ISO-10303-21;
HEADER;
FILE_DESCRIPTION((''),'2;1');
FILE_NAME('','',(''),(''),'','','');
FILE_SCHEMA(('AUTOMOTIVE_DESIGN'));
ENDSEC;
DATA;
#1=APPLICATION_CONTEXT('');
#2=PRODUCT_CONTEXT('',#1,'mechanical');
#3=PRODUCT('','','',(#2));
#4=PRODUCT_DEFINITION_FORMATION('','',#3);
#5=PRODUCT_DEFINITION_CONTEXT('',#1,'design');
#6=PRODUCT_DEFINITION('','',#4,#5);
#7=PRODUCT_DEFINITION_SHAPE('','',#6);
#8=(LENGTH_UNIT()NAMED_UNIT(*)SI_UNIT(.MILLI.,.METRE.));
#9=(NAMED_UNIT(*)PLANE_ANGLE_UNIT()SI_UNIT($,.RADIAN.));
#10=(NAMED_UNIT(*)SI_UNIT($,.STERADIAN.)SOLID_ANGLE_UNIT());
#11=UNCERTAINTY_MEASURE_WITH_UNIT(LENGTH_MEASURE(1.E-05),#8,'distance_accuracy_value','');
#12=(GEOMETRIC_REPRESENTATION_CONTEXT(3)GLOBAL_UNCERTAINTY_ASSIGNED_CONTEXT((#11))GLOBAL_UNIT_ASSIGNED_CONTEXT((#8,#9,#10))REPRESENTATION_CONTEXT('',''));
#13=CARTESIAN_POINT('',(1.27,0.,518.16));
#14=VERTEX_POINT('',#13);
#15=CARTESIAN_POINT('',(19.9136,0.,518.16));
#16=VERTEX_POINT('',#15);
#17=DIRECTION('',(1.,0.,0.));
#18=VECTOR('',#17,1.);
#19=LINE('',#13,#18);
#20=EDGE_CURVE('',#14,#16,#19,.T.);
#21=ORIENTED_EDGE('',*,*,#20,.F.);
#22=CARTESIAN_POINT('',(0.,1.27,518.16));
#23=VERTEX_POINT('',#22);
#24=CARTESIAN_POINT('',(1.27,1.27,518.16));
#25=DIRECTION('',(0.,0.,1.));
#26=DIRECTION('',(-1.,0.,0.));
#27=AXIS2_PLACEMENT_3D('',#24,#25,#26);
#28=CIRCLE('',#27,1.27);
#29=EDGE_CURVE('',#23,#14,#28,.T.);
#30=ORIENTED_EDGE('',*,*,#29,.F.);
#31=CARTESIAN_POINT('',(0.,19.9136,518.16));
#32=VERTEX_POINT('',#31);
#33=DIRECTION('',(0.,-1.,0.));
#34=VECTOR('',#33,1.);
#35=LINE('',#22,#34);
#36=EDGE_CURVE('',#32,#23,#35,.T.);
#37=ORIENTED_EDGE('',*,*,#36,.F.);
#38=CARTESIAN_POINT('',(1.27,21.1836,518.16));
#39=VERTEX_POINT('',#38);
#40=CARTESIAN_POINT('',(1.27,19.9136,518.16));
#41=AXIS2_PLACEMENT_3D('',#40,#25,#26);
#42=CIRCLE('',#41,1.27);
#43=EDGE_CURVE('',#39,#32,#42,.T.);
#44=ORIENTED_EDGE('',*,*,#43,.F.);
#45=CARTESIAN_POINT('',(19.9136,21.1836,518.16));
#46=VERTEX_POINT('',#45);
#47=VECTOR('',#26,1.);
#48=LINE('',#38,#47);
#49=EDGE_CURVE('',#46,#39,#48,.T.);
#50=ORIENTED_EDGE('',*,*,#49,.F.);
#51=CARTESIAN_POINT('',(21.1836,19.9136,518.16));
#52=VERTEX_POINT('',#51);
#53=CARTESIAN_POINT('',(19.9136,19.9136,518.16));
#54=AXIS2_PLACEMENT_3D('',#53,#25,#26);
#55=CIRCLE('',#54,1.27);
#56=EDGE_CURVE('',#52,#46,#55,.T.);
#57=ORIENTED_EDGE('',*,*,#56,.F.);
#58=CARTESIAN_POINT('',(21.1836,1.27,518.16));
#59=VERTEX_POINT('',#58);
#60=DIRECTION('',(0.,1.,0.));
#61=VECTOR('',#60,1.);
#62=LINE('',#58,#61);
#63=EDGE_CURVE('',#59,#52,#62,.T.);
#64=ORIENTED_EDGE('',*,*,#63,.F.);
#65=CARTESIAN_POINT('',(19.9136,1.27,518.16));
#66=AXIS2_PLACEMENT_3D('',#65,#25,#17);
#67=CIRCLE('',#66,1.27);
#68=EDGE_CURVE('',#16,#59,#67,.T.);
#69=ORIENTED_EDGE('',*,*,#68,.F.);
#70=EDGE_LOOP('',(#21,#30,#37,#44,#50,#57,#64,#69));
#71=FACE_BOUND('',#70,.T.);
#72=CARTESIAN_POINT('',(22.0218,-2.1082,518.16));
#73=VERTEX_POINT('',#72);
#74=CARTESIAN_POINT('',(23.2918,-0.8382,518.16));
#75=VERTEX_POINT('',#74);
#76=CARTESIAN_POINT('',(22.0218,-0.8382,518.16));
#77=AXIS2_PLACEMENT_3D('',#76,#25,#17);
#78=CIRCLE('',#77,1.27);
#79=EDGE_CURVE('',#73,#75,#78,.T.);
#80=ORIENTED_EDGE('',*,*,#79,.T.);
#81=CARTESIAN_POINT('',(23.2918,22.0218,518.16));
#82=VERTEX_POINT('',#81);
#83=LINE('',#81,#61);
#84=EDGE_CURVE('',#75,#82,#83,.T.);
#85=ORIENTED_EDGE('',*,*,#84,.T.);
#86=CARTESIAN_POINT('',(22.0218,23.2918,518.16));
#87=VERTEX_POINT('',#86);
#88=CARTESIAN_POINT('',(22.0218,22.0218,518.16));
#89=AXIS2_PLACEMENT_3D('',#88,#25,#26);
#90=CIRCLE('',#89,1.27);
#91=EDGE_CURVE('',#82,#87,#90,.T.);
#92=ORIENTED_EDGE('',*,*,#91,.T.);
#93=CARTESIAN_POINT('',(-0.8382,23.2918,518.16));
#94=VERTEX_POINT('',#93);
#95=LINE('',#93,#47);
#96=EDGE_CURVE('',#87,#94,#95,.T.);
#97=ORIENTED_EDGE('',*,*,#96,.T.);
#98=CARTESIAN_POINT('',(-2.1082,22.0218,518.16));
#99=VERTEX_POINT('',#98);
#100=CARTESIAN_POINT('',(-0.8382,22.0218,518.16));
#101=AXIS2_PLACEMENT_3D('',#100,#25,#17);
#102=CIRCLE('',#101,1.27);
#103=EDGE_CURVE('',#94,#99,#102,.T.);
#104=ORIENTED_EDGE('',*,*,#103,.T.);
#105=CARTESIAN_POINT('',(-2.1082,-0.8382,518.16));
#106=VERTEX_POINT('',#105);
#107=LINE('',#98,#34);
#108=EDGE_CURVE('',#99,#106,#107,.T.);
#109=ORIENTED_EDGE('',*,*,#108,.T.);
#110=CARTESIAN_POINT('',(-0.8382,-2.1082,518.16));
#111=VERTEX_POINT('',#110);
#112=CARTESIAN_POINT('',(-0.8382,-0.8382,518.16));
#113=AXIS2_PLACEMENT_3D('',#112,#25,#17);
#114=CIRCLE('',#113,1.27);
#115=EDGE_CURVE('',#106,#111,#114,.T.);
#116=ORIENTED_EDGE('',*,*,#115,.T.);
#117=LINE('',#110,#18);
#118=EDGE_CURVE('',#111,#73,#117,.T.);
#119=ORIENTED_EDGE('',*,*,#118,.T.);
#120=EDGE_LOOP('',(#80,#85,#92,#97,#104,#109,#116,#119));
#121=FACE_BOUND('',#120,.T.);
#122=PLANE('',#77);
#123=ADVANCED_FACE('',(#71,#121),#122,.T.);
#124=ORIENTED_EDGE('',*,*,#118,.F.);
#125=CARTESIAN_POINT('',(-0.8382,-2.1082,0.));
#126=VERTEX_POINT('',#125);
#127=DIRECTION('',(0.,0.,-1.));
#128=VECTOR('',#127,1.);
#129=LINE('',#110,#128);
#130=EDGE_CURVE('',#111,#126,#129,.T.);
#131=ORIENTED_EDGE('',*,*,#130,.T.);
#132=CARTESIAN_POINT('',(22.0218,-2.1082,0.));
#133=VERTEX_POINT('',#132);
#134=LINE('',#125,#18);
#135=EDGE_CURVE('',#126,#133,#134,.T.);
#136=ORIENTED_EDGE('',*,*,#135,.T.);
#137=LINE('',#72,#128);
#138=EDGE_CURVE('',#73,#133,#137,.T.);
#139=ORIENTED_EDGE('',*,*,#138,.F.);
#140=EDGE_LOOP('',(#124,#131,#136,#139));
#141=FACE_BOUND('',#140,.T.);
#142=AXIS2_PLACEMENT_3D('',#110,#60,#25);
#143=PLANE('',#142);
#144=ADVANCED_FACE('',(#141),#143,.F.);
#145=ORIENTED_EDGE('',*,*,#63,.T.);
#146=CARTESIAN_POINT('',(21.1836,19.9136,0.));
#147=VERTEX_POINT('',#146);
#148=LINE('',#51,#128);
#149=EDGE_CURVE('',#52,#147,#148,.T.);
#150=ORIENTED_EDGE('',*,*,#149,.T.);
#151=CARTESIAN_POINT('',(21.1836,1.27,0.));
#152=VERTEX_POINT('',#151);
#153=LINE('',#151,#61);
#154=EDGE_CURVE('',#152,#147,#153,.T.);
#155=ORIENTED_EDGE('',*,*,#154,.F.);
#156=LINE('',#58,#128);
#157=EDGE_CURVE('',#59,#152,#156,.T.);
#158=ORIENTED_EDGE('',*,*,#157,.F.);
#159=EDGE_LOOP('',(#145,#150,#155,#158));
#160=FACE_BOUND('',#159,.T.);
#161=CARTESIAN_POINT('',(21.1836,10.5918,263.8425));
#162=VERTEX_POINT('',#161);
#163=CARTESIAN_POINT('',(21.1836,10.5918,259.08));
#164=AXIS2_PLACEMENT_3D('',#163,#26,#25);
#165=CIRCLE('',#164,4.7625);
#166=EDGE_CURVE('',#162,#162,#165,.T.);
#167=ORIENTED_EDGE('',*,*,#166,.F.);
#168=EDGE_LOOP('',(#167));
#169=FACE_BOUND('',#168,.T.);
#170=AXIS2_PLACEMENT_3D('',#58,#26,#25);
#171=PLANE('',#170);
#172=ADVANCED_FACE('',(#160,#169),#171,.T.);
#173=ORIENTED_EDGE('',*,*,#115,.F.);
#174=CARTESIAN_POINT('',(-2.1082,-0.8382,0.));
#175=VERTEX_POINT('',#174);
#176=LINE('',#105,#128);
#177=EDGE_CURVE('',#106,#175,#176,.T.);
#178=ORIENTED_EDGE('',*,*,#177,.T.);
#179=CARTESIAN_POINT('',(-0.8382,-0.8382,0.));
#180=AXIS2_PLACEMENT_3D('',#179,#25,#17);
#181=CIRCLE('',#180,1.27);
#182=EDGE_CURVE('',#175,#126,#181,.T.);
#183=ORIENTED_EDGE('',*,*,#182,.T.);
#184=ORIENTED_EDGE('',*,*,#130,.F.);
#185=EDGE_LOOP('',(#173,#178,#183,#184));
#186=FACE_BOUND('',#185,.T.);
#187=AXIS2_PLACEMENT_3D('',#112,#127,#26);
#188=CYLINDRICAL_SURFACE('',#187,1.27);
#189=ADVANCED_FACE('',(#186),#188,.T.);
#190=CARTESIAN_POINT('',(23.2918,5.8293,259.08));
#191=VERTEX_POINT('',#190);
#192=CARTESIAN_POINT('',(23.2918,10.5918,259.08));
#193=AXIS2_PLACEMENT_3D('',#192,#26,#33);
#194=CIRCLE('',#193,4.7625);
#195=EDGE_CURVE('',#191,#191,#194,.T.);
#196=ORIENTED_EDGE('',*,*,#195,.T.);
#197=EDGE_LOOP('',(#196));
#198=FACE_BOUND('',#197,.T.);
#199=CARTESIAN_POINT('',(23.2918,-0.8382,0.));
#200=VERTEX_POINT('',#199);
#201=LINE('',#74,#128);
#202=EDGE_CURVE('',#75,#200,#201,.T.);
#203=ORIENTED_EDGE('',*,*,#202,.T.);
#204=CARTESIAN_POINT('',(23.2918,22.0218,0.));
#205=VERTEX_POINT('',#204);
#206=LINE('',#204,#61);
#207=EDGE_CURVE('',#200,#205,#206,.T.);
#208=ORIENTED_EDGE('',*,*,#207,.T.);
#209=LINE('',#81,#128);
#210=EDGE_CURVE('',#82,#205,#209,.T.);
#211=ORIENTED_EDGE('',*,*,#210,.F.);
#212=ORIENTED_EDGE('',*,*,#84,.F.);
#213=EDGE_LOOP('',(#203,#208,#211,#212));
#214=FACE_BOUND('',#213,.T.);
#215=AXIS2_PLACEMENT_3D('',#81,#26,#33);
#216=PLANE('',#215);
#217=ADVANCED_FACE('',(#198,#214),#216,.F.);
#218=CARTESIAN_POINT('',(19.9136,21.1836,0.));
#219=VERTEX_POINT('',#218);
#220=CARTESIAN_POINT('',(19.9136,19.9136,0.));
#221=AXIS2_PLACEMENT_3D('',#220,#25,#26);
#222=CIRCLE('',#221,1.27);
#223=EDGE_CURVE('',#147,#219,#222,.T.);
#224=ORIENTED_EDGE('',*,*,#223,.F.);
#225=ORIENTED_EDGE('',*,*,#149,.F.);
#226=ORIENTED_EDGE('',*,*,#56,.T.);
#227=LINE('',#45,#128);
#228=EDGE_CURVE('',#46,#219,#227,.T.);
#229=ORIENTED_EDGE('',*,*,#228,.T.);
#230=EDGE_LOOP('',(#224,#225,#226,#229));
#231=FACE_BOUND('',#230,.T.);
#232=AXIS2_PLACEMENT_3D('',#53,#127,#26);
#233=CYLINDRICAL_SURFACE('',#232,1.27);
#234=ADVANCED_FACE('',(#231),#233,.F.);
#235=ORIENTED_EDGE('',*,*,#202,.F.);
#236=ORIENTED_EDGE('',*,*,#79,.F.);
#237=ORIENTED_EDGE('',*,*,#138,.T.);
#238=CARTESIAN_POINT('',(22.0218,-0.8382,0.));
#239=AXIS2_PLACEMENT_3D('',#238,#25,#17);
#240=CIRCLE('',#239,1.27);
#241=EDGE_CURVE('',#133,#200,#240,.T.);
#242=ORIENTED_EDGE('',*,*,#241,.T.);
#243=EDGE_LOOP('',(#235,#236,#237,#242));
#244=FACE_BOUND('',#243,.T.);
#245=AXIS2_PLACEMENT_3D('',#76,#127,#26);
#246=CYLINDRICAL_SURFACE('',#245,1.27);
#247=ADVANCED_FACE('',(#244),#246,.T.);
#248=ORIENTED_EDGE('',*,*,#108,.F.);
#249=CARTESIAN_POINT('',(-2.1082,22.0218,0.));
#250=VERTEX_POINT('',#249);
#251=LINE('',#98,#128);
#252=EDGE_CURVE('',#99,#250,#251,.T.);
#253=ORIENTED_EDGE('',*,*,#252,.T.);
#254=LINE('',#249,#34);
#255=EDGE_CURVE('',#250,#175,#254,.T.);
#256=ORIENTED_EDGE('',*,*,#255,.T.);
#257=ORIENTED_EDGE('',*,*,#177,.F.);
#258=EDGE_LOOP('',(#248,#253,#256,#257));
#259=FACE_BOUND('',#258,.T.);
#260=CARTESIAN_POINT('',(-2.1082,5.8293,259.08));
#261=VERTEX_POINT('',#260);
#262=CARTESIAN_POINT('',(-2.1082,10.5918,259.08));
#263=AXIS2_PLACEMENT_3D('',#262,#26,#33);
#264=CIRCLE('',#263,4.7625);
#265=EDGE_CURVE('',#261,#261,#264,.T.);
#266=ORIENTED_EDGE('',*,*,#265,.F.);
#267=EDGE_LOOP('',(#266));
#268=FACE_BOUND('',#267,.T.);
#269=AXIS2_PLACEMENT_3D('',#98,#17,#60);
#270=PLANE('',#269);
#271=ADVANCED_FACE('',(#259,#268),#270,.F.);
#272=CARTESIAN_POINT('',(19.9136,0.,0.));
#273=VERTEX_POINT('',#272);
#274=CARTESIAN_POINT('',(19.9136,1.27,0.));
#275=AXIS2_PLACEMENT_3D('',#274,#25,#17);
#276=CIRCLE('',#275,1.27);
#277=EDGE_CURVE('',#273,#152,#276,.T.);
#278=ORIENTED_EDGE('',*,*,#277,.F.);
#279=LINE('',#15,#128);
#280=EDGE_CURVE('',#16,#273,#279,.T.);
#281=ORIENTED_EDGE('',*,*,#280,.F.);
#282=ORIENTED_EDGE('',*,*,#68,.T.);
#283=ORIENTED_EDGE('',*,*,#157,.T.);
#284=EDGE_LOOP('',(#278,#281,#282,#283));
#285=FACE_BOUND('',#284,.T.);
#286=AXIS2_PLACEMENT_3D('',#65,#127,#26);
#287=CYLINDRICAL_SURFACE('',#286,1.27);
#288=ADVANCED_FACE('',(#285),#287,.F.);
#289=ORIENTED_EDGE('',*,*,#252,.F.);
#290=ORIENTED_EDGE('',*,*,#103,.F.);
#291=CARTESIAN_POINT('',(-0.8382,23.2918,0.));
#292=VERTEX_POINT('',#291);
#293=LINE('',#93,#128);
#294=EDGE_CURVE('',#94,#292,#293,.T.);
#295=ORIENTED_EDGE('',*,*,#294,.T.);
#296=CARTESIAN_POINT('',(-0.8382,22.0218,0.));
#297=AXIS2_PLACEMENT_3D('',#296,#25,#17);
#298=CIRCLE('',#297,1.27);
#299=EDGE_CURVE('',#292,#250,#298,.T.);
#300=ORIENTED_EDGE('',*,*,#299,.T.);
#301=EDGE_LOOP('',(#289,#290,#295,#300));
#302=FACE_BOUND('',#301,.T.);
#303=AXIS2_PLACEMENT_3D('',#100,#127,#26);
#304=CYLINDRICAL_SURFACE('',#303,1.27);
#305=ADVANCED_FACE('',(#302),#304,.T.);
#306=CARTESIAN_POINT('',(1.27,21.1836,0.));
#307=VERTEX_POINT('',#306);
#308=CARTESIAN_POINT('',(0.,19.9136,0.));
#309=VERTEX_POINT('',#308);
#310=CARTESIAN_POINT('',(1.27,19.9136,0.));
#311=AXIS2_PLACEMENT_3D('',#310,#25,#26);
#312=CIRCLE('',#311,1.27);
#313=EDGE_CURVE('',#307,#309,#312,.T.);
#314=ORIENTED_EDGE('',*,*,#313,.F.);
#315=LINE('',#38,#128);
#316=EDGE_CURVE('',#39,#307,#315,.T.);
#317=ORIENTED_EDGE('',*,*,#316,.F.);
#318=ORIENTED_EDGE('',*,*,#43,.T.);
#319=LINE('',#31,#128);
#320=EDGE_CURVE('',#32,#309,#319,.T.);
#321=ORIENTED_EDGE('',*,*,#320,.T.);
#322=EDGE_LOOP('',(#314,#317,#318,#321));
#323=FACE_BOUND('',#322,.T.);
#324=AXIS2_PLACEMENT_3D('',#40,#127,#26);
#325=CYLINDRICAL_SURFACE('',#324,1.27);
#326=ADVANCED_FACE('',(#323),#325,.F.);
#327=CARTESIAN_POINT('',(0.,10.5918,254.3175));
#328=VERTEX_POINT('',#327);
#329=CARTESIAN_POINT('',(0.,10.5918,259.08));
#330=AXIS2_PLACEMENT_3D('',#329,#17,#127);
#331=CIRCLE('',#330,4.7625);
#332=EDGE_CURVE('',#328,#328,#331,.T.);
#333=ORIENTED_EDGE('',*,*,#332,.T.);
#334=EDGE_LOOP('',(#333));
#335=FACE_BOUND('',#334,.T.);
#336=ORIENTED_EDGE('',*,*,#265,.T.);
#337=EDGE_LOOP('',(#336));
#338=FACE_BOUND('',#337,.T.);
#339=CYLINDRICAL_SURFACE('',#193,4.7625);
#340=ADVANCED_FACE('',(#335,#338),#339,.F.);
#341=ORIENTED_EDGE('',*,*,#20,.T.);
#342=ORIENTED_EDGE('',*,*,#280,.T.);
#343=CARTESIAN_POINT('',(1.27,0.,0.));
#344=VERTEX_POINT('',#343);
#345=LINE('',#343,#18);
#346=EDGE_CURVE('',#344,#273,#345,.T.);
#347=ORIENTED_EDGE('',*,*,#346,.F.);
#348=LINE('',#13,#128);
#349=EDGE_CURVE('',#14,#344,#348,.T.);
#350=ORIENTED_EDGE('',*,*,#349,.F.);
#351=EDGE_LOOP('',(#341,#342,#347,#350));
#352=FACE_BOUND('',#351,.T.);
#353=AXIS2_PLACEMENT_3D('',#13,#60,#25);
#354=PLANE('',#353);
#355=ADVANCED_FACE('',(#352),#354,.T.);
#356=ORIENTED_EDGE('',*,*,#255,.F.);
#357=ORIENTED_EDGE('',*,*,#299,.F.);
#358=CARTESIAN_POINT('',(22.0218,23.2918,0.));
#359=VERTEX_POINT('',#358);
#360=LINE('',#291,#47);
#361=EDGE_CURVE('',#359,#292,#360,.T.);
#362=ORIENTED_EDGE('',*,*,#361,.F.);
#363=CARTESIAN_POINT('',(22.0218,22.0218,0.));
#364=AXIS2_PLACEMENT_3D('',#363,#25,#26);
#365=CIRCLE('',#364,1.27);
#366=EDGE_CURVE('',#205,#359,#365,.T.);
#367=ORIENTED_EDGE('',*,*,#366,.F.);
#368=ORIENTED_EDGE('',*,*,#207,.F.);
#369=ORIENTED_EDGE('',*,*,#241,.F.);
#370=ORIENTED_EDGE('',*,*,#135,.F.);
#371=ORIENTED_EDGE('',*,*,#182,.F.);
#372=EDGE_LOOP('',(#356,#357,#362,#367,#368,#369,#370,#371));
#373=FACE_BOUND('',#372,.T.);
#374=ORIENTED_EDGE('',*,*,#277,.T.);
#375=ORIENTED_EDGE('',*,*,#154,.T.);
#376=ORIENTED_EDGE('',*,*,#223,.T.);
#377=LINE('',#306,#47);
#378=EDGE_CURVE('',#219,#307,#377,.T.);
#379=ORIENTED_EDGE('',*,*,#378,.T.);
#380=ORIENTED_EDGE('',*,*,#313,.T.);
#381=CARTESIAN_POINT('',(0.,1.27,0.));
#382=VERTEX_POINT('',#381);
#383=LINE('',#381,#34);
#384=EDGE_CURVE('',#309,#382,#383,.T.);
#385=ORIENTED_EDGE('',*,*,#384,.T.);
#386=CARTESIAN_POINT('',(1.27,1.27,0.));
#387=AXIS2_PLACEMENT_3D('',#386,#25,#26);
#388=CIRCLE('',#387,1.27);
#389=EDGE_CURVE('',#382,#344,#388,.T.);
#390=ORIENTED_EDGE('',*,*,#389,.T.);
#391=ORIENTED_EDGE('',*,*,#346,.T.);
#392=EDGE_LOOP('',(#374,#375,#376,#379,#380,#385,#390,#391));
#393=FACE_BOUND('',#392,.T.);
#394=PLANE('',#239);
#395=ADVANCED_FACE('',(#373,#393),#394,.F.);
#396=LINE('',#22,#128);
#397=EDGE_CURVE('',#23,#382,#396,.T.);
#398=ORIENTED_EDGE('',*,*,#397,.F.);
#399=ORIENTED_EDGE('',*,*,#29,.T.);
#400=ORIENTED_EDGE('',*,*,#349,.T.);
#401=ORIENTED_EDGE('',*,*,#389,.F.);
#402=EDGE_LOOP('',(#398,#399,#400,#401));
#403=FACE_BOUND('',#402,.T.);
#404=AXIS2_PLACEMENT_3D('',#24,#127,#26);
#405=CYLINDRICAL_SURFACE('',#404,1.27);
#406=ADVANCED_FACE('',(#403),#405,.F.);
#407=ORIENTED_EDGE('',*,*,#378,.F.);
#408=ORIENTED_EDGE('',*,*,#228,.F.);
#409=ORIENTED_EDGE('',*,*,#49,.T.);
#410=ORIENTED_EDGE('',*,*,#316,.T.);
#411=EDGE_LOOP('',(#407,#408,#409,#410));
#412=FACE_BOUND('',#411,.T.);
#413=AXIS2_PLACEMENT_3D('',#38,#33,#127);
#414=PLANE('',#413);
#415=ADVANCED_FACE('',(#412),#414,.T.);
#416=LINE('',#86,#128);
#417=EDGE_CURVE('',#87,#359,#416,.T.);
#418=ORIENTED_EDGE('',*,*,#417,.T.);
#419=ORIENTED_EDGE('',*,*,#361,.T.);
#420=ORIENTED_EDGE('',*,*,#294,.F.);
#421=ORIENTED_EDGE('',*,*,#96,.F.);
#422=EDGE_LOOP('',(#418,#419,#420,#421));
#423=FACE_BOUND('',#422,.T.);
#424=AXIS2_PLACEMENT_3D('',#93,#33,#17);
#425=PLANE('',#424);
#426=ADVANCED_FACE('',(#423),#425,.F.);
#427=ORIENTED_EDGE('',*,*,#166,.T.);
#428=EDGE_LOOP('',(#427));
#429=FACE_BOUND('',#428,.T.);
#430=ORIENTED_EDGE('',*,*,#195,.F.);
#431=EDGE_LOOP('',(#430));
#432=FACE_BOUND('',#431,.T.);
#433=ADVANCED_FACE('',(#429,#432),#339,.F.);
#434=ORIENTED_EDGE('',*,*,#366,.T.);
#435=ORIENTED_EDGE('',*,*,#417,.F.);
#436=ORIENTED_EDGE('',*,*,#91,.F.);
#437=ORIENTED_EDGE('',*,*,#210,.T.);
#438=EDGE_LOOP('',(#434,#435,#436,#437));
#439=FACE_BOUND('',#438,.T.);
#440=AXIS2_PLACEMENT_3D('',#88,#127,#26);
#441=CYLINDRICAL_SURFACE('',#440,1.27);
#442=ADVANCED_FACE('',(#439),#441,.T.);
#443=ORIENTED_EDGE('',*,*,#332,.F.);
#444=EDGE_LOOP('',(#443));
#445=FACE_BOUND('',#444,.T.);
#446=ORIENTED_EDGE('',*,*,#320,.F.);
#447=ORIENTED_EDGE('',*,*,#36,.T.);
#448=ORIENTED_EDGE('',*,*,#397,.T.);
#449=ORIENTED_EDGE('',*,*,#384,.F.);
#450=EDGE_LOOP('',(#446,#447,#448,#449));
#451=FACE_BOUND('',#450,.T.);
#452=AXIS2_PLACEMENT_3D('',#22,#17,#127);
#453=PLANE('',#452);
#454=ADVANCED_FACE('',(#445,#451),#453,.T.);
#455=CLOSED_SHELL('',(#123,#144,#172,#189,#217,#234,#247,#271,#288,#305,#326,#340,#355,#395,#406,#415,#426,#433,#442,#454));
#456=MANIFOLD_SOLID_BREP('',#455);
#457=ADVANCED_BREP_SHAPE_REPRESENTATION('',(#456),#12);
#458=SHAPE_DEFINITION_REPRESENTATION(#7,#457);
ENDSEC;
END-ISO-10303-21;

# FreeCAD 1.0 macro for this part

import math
import FreeCAD as App
import Part
import Sketcher

V = App.Vector
Q = App.Units.Quantity

doc = App.newDocument("Part")
body = doc.addObject("PartDesign::Body", "Body")

sketch1 = body.newObject("Sketcher::SketchObject", "Sketch")
sketch1.AttachmentSupport = (doc.getObject("XY_Plane"), [""])
sketch1.MapMode = "FlatFace"
sketch1.addGeometry([
    Part.LineSegment(V(22.0218, 23.2918, 0), V(-0.8382, 23.2918, 0)),
    Part.ArcOfCircle(Part.Circle(V(-0.8382, 22.0218, 0), V(0, 0, 1), 1.27), math.radians(90), math.radians(180)),
    Part.LineSegment(V(-2.1082, 22.0218, 0), V(-2.1082, -0.8382, 0)),
    Part.ArcOfCircle(Part.Circle(V(-0.8382, -0.8382, 0), V(0, 0, 1), 1.27), math.radians(180), math.radians(270)),
    Part.LineSegment(V(-0.8382, -2.1082, 0), V(22.0218, -2.1082, 0)),
    Part.ArcOfCircle(Part.Circle(V(22.0218, -0.8382, 0), V(0, 0, 1), 1.27), math.radians(-90), math.radians(0)),
    Part.LineSegment(V(23.2918, -0.8382, 0), V(23.2918, 22.0218, 0)),
    Part.ArcOfCircle(Part.Circle(V(22.0218, 22.0218, 0), V(0, 0, 1), 1.27), math.radians(0), math.radians(90)),
    Part.ArcOfCircle(Part.Circle(V(1.27, 1.27, 0), V(0, 0, 1), 1.27), math.radians(180), math.radians(270)),
    Part.LineSegment(V(0, 1.27, 0), V(0, 19.9136, 0)),
    Part.ArcOfCircle(Part.Circle(V(1.27, 19.9136, 0), V(0, 0, 1), 1.27), math.radians(90), math.radians(180)),
    Part.LineSegment(V(1.27, 21.1836, 0), V(19.9136, 21.1836, 0)),
    Part.ArcOfCircle(Part.Circle(V(19.9136, 19.9136, 0), V(0, 0, 1), 1.27), math.radians(0), math.radians(90)),
    Part.LineSegment(V(21.1836, 19.9136, 0), V(21.1836, 1.27, 0)),
    Part.ArcOfCircle(Part.Circle(V(19.9136, 1.27, 0), V(0, 0, 1), 1.27), math.radians(-90), math.radians(0)),
    Part.LineSegment(V(19.9136, 0, 0), V(1.27, 0, 0)),
], False)
sketch1.addConstraint([
    Sketcher.Constraint("Tangent", 0, 2, 1, 1),
    Sketcher.Constraint("Tangent", 1, 2, 2, 1),
    Sketcher.Constraint("Tangent", 2, 2, 3, 1),
    Sketcher.Constraint("Tangent", 3, 2, 4, 1),
    Sketcher.Constraint("Tangent", 4, 2, 5, 1),
    Sketcher.Constraint("Tangent", 5, 2, 6, 1),
    Sketcher.Constraint("Tangent", 6, 2, 7, 1),
    Sketcher.Constraint("Tangent", 7, 2, 0, 1),
    Sketcher.Constraint("Tangent", 8, 1, 9, 1),
    Sketcher.Constraint("Tangent", 9, 2, 10, 2),
    Sketcher.Constraint("Tangent", 10, 1, 11, 1),
    Sketcher.Constraint("Tangent", 11, 2, 12, 2),
    Sketcher.Constraint("Tangent", 12, 1, 13, 1),
    Sketcher.Constraint("Tangent", 13, 2, 14, 2),
    Sketcher.Constraint("Tangent", 14, 1, 15, 1),
    Sketcher.Constraint("Tangent", 15, 2, 8, 2),
    Sketcher.Constraint("Horizontal", 0),
    Sketcher.Constraint("Vertical", 2),
    Sketcher.Constraint("Horizontal", 4),
    Sketcher.Constraint("Vertical", 6),
    Sketcher.Constraint("Vertical", 9),
    Sketcher.Constraint("Horizontal", 11),
    Sketcher.Constraint("Vertical", 13),
    Sketcher.Constraint("Horizontal", 15),
    Sketcher.Constraint("Equal", 1, 3),
    Sketcher.Constraint("Equal", 3, 5),
    Sketcher.Constraint("Equal", 5, 7),
    Sketcher.Constraint("Equal", 7, 8),
    Sketcher.Constraint("Equal", 8, 10),
    Sketcher.Constraint("Equal", 10, 12),
    Sketcher.Constraint("Equal", 12, 14),
    Sketcher.Constraint("PointOnObject", 8, 1, -2),
    Sketcher.Constraint("PointOnObject", 14, 1, -1),
    Sketcher.Constraint("Equal", 4, 2),
    Sketcher.Constraint("Equal", 15, 9),
    Sketcher.Constraint("Radius", 1, Q("0.05 in")),
    Sketcher.Constraint("DistanceX", 0, 2, 0, 1, Q("0.9 in")),
    Sketcher.Constraint("DistanceX", 11, 1, 11, 2, Q("0.734 in")),
    Sketcher.Constraint("DistanceX", 1, 3, -1, 1, Q("0.033 in")),
    Sketcher.Constraint("DistanceY", -1, 1, 1, 3, Q("0.867 in")),
])
pad1 = body.newObject("PartDesign::Pad", "Pad")
pad1.Profile = sketch1
pad1.Length = Q("20.4 in")

sketch2 = body.newObject("Sketcher::SketchObject", "Sketch001")
sketch2.AttachmentSupport = (doc.getObject("YZ_Plane"), [""])
sketch2.MapMode = "FlatFace"
sketch2.AttachmentOffset = App.Placement(V(0, 0, -0.083 * 25.4), App.Rotation())
sketch2.addGeometry(Part.Circle(V(10.5918, 259.08, 0), V(0, 0, 1), 4.7625), False)
sketch2.addConstraint([
    Sketcher.Constraint("Diameter", 0, Q("0.375 in")),
    Sketcher.Constraint("DistanceY", -1, 1, 0, 3, Q("10.2 in")),
    Sketcher.Constraint("DistanceX", -1, 1, 0, 3, Q("0.417 in")),
])
pocket1 = body.newObject("PartDesign::Pocket", "Pocket")
pocket1.Profile = sketch2
pocket1.Type = "ThroughAll"
pocket1.Reversed = True

doc.recompute()
